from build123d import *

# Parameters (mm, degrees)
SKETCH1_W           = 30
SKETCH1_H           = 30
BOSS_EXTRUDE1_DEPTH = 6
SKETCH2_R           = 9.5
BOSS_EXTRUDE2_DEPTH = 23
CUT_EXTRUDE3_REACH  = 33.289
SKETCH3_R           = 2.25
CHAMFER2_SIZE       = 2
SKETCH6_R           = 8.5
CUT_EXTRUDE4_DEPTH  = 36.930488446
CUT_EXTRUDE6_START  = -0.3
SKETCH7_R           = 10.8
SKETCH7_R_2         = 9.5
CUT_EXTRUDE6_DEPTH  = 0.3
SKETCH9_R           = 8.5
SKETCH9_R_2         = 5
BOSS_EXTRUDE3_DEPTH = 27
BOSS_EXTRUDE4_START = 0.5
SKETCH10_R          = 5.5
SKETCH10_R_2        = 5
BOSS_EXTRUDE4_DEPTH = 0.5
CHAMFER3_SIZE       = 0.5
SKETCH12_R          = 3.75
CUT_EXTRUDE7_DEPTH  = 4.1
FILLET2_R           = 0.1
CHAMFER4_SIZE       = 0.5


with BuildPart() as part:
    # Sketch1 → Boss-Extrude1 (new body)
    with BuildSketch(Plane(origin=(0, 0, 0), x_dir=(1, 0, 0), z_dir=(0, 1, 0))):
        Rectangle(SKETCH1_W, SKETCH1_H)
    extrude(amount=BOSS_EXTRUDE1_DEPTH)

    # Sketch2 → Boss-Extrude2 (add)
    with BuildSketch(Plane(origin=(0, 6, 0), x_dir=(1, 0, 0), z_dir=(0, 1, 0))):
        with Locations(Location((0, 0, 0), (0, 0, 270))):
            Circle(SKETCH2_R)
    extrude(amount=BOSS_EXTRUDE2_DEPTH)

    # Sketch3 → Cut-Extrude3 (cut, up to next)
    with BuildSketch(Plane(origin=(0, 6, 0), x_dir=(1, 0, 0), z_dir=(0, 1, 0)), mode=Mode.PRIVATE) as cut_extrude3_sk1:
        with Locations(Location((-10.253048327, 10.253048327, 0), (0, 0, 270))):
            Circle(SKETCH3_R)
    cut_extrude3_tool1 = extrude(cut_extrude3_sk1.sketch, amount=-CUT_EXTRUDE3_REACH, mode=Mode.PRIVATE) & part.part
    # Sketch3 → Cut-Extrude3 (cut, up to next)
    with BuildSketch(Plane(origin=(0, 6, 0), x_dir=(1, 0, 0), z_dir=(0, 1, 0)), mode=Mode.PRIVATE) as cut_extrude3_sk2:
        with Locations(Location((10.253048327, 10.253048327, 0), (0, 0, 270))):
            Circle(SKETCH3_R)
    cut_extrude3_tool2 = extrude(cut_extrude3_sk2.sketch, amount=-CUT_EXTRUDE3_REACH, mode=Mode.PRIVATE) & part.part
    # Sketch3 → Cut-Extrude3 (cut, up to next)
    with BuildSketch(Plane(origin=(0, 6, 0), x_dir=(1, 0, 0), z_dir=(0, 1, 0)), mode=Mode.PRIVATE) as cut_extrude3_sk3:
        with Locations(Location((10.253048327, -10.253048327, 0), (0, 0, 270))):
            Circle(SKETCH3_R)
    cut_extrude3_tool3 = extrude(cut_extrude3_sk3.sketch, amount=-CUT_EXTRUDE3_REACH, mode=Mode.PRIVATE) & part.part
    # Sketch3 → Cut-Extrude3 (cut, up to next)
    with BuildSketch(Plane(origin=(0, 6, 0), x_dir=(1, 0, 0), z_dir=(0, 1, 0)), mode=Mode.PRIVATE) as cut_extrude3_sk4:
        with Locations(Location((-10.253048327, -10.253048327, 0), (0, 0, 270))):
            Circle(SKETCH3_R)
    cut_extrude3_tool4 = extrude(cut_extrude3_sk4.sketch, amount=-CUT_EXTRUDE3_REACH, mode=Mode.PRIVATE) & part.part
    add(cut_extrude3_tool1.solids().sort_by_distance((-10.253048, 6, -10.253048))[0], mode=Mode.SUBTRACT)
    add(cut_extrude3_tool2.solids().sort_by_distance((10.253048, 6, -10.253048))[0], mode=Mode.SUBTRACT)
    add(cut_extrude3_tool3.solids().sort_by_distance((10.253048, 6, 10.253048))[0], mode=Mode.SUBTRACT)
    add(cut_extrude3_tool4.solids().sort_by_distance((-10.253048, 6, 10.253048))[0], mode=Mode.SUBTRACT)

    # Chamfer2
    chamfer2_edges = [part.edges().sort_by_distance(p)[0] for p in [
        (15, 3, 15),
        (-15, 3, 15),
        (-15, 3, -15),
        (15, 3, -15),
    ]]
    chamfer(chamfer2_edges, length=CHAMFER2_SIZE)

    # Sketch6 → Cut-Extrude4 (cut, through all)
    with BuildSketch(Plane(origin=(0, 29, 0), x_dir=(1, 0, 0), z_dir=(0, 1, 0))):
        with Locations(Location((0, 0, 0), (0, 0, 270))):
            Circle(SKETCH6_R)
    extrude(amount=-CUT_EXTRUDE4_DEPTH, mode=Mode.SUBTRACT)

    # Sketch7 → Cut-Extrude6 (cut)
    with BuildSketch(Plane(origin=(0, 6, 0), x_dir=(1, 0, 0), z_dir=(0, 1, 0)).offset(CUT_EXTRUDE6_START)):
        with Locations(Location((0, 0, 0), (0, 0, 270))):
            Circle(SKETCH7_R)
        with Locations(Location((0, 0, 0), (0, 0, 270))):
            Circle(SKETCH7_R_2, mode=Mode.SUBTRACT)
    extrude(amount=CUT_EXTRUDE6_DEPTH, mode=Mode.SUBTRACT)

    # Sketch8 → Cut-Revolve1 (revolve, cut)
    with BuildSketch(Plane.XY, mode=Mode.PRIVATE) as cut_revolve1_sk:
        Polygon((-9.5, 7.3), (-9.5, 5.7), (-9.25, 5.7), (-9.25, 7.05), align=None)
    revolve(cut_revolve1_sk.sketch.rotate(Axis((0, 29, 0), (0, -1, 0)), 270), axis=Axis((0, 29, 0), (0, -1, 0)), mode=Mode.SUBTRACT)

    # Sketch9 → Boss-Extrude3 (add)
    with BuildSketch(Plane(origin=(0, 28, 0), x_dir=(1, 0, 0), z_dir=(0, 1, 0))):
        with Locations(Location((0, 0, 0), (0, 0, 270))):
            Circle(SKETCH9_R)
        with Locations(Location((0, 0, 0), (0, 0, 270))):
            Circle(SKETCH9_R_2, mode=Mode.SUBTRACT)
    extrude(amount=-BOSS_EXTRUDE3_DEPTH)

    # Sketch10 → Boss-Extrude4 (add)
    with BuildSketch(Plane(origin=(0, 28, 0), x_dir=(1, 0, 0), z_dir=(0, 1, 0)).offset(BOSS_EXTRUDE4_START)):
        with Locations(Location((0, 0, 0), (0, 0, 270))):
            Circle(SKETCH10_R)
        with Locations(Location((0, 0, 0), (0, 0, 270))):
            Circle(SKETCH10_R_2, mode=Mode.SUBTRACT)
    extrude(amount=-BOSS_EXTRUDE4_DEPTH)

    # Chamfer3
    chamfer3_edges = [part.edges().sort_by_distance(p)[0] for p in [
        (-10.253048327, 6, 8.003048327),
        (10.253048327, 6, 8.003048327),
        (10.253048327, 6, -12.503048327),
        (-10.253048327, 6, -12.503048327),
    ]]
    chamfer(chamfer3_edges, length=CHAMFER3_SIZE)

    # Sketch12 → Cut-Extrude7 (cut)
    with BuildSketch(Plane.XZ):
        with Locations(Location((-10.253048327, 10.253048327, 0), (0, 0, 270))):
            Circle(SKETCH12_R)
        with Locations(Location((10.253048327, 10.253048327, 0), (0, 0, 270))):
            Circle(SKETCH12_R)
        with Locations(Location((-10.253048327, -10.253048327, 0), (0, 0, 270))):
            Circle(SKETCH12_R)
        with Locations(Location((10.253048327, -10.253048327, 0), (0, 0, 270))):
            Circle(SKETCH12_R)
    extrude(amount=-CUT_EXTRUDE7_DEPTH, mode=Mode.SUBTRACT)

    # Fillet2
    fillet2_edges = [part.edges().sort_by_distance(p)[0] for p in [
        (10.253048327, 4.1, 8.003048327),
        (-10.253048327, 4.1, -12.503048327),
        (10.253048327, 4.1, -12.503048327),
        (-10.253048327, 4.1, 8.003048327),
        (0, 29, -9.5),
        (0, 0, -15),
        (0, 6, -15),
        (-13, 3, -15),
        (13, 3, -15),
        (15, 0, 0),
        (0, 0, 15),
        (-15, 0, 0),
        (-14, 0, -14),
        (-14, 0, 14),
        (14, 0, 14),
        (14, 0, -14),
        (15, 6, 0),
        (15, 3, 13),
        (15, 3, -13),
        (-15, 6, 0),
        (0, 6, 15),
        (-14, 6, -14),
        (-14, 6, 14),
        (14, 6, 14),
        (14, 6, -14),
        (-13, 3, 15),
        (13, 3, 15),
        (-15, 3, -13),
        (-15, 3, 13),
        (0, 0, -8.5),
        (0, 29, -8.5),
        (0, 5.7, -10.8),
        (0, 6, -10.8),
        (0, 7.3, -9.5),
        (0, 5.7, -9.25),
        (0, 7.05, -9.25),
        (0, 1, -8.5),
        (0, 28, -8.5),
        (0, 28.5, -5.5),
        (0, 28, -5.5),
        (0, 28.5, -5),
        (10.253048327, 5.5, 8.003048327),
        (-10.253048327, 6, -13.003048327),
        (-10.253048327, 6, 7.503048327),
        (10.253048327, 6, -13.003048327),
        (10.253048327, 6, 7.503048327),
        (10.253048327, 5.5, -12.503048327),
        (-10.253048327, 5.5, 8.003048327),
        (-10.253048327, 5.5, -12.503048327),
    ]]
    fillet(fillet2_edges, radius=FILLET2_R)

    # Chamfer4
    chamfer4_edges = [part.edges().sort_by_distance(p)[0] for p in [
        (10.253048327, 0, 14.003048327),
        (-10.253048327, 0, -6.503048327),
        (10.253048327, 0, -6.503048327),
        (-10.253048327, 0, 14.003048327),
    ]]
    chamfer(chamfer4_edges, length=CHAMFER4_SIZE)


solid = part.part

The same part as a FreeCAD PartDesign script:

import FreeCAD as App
import Part
import Sketcher
from FreeCAD import Vector
Q = App.Units.Quantity


def edges_at(feature, points):
    """Names of the edges that pass closest to the given points."""
    edges = feature.Shape.Edges
    near = lambda p: min(range(len(edges)), key=lambda i: edges[i].distToShape(Part.Vertex(*p))[0])
    return sorted({f"Edge{near(p) + 1}" for p in points})


def add_polygon(sketch, points):
    """Adds a closed chain of lines whose ends are joined by coincident constraints."""
    first, n = sketch.GeometryCount, len(points)
    for a, b in zip(points, points[1:] + points[:1]):
        sketch.addGeometry(Part.LineSegment(App.Vector(*a, 0), App.Vector(*b, 0)), False)
    for i in range(n):
        sketch.addConstraint(Sketcher.Constraint("Coincident", first + i, 2, first + (i + 1) % n, 1))

doc = App.newDocument("Part")
body = doc.addObject("PartDesign::Body", "Body")

# Sketch on XZ plane
sketch1 = body.newObject("Sketcher::SketchObject", "Sketch")
sketch1.AttachmentSupport = (doc.getObject("XZ_Plane"), [""])
sketch1.MapMode = "FlatFace"
add_polygon(sketch1, [(-15, -15), (-15, 15), (15, 15), (15, -15)])  # lines 0-3
sketch1.addConstraint([
    Sketcher.Constraint("Vertical", 0),
    Sketcher.Constraint("Horizontal", 1),
    Sketcher.Constraint("Vertical", 2),
    Sketcher.Constraint("Horizontal", 3),
    Sketcher.Constraint("Symmetric", 0, 2, 2, 2, -1, 1),
    Sketcher.Constraint("Equal", 3, 0),
    Sketcher.Constraint("DistanceX", 1, 1, 1, 2, Q("30 mm")),
])
pad1 = body.newObject("PartDesign::Pad", "Pad")
pad1.Profile = sketch1
pad1.Length = 6
pad1.Reversed = True

# Sketch on XZ plane
sketch2 = body.newObject("Sketcher::SketchObject", "Sketch001")
sketch2.AttachmentSupport = (doc.getObject("XZ_Plane"), [""])
sketch2.MapMode = "FlatFace"
sketch2.AttachmentOffset = App.Placement(Vector(0, 0, -6), App.Rotation())
sketch2.addGeometry(Part.Circle(Vector(0, 0, 0), Vector(0, 0, 1), 9.5), False)
sketch2.addConstraint([
    Sketcher.Constraint("Coincident", 0, 3, -1, 1),
    Sketcher.Constraint("Diameter", 0, Q("19 mm")),
])
pad2 = body.newObject("PartDesign::Pad", "Pad001")
pad2.Profile = sketch2
pad2.Length = 23
pad2.Reversed = True

# Sketch on XZ plane
sketch3 = body.newObject("Sketcher::SketchObject", "Sketch002")
sketch3.AttachmentSupport = (doc.getObject("XZ_Plane"), [""])
sketch3.MapMode = "FlatFace"
sketch3.AttachmentOffset = App.Placement(Vector(0, 0, -6), App.Rotation())
sketch3.addGeometry(Part.Circle(Vector(-10.253048, -10.253048, 0), Vector(0, 0, 1), 2.25), False)
sketch3.addConstraint([
    Sketcher.Constraint("Diameter", 0, Q("4.5 mm")),
    Sketcher.Constraint("DistanceX", 0, 3, -1, 1, Q("10.253048 mm")),
    Sketcher.Constraint("DistanceY", 0, 3, -1, 1, Q("10.253048 mm")),
])
pocket1 = body.newObject("PartDesign::Pocket", "Pocket")
pocket1.Profile = sketch3
pocket1.Type = "UpToFirst"
pocket1.Reversed = True

# Sketch on XZ plane
sketch4 = body.newObject("Sketcher::SketchObject", "Sketch003")
sketch4.AttachmentSupport = (doc.getObject("XZ_Plane"), [""])
sketch4.MapMode = "FlatFace"
sketch4.AttachmentOffset = App.Placement(Vector(0, 0, -6), App.Rotation())
sketch4.addGeometry(Part.Circle(Vector(10.253048, -10.253048, 0), Vector(0, 0, 1), 2.25), False)
sketch4.addConstraint([
    Sketcher.Constraint("Diameter", 0, Q("4.5 mm")),
    Sketcher.Constraint("DistanceX", -1, 1, 0, 3, Q("10.253048 mm")),
    Sketcher.Constraint("DistanceY", 0, 3, -1, 1, Q("10.253048 mm")),
])
pocket2 = body.newObject("PartDesign::Pocket", "Pocket001")
pocket2.Profile = sketch4
pocket2.Type = "UpToFirst"
pocket2.Reversed = True

# Sketch on XZ plane
sketch5 = body.newObject("Sketcher::SketchObject", "Sketch004")
sketch5.AttachmentSupport = (doc.getObject("XZ_Plane"), [""])
sketch5.MapMode = "FlatFace"
sketch5.AttachmentOffset = App.Placement(Vector(0, 0, -6), App.Rotation())
sketch5.addGeometry(Part.Circle(Vector(10.253048, 10.253048, 0), Vector(0, 0, 1), 2.25), False)
sketch5.addConstraint([
    Sketcher.Constraint("Diameter", 0, Q("4.5 mm")),
    Sketcher.Constraint("DistanceX", -1, 1, 0, 3, Q("10.253048 mm")),
    Sketcher.Constraint("DistanceY", -1, 1, 0, 3, Q("10.253048 mm")),
])
pocket3 = body.newObject("PartDesign::Pocket", "Pocket002")
pocket3.Profile = sketch5
pocket3.Type = "UpToFirst"
pocket3.Reversed = True

# Sketch on XZ plane
sketch6 = body.newObject("Sketcher::SketchObject", "Sketch005")
sketch6.AttachmentSupport = (doc.getObject("XZ_Plane"), [""])
sketch6.MapMode = "FlatFace"
sketch6.AttachmentOffset = App.Placement(Vector(0, 0, -6), App.Rotation())
sketch6.addGeometry(Part.Circle(Vector(-10.253048, 10.253048, 0), Vector(0, 0, 1), 2.25), False)
sketch6.addConstraint([
    Sketcher.Constraint("Diameter", 0, Q("4.5 mm")),
    Sketcher.Constraint("DistanceX", 0, 3, -1, 1, Q("10.253048 mm")),
    Sketcher.Constraint("DistanceY", -1, 1, 0, 3, Q("10.253048 mm")),
])
pocket4 = body.newObject("PartDesign::Pocket", "Pocket003")
pocket4.Profile = sketch6
pocket4.Type = "UpToFirst"
pocket4.Reversed = True
doc.recompute()

chamfer = body.newObject("PartDesign::Chamfer", "Chamfer")
chamfer.Base = (pocket4, edges_at(pocket4, [
    (15, 3, 15),
    (-15, 3, 15),
    (-15, 3, -15),
    (15, 3, -15),
]))
chamfer.Size = 2

# Sketch on XZ plane
sketch7 = body.newObject("Sketcher::SketchObject", "Sketch006")
sketch7.AttachmentSupport = (doc.getObject("XZ_Plane"), [""])
sketch7.MapMode = "FlatFace"
sketch7.AttachmentOffset = App.Placement(Vector(0, 0, -29), App.Rotation())
sketch7.addGeometry(Part.Circle(Vector(0, 0, 0), Vector(0, 0, 1), 8.5), False)
sketch7.addConstraint([
    Sketcher.Constraint("Coincident", 0, 3, -1, 1),
    Sketcher.Constraint("Diameter", 0, Q("17 mm")),
])
pocket5 = body.newObject("PartDesign::Pocket", "Pocket004")
pocket5.Profile = sketch7
pocket5.Type = "ThroughAll"
pocket5.Reversed = True

# Sketch on XZ plane
sketch8 = body.newObject("Sketcher::SketchObject", "Sketch007")
sketch8.AttachmentSupport = (doc.getObject("XZ_Plane"), [""])
sketch8.MapMode = "FlatFace"
sketch8.AttachmentOffset = App.Placement(Vector(0, 0, -5.7), App.Rotation())
sketch8.addGeometry([
    Part.Circle(Vector(0, 0, 0), Vector(0, 0, 1), 10.8),
    Part.Circle(Vector(0, 0, 0), Vector(0, 0, 1), 9.5),
], False)
sketch8.addConstraint([
    Sketcher.Constraint("Coincident", 0, 3, -1, 1),
    Sketcher.Constraint("Coincident", 1, 3, -1, 1),
    Sketcher.Constraint("Diameter", 1, Q("19 mm")),
    Sketcher.Constraint("Diameter", 0, Q("21.6 mm")),
])
pocket6 = body.newObject("PartDesign::Pocket", "Pocket005")
pocket6.Profile = sketch8
pocket6.Length = 0.3

# Sketch on XY plane
sketch9 = body.newObject("Sketcher::SketchObject", "Sketch008")
sketch9.AttachmentSupport = (doc.getObject("XY_Plane"), [""])
sketch9.MapMode = "FlatFace"
add_polygon(sketch9, [(-9.5, 7.3), (-9.5, 5.7), (-9.25, 5.7), (-9.25, 7.05)])  # lines 0-3
sketch9.addConstraint([
    Sketcher.Constraint("Vertical", 0),
    Sketcher.Constraint("Horizontal", 1),
    Sketcher.Constraint("Vertical", 2),
    Sketcher.Constraint("Angle", 3, Q("135 deg")),
    Sketcher.Constraint("DistanceY", 0, 2, 0, 1, Q("1.6 mm")),
    Sketcher.Constraint("DistanceX", 1, 1, 1, 2, Q("0.25 mm")),
    Sketcher.Constraint("DistanceX", 0, 2, -1, 1, Q("9.5 mm")),
    Sketcher.Constraint("DistanceY", -1, 1, 0, 2, Q("5.7 mm")),
])
groove = body.newObject("PartDesign::Groove", "Groove")
groove.Profile = sketch9
groove.ReferenceAxis = (sketch9, ["V_Axis"])
groove.Angle = 360

# Sketch on XZ plane
sketch10 = body.newObject("Sketcher::SketchObject", "Sketch009")
sketch10.AttachmentSupport = (doc.getObject("XZ_Plane"), [""])
sketch10.MapMode = "FlatFace"
sketch10.AttachmentOffset = App.Placement(Vector(0, 0, -28), App.Rotation())
sketch10.addGeometry([
    Part.Circle(Vector(0, 0, 0), Vector(0, 0, 1), 8.5),
    Part.Circle(Vector(0, 0, 0), Vector(0, 0, 1), 5),
], False)
sketch10.addConstraint([
    Sketcher.Constraint("Coincident", 0, 3, -1, 1),
    Sketcher.Constraint("Coincident", 1, 3, -1, 1),
    Sketcher.Constraint("Diameter", 0, Q("17 mm")),
    Sketcher.Constraint("Diameter", 1, Q("10 mm")),
])
pad3 = body.newObject("PartDesign::Pad", "Pad002")
pad3.Profile = sketch10
pad3.Length = 27

# Sketch on XZ plane
sketch11 = body.newObject("Sketcher::SketchObject", "Sketch010")
sketch11.AttachmentSupport = (doc.getObject("XZ_Plane"), [""])
sketch11.MapMode = "FlatFace"
sketch11.AttachmentOffset = App.Placement(Vector(0, 0, -28.5), App.Rotation())
sketch11.addGeometry([
    Part.Circle(Vector(0, 0, 0), Vector(0, 0, 1), 5.5),
    Part.Circle(Vector(0, 0, 0), Vector(0, 0, 1), 5),
], False)
sketch11.addConstraint([
    Sketcher.Constraint("Coincident", 0, 3, -1, 1),
    Sketcher.Constraint("Coincident", 1, 3, -1, 1),
    Sketcher.Constraint("Diameter", 0, Q("11 mm")),
    Sketcher.Constraint("Diameter", 1, Q("10 mm")),
])
pad4 = body.newObject("PartDesign::Pad", "Pad003")
pad4.Profile = sketch11
pad4.Length = 0.5
doc.recompute()

chamfer2 = body.newObject("PartDesign::Chamfer", "Chamfer001")
chamfer2.Base = (pad4, edges_at(pad4, [
    (-10.253, 6, 8.003),
    (10.253, 6, 8.003),
    (10.253, 6, -12.503),
    (-10.253, 6, -12.503),
]))
chamfer2.Size = 0.5

# Sketch on XZ plane
sketch12 = body.newObject("Sketcher::SketchObject", "Sketch011")
sketch12.AttachmentSupport = (doc.getObject("XZ_Plane"), [""])
sketch12.MapMode = "FlatFace"
sketch12.addGeometry([
    Part.Circle(Vector(-10.253048, 10.253048, 0), Vector(0, 0, 1), 3.75),
    Part.Circle(Vector(10.253048, 10.253048, 0), Vector(0, 0, 1), 3.75),
    Part.Circle(Vector(-10.253048, -10.253048, 0), Vector(0, 0, 1), 3.75),
    Part.Circle(Vector(10.253048, -10.253048, 0), Vector(0, 0, 1), 3.75),
], False)
sketch12.addConstraint([
    Sketcher.Constraint("Equal", 0, 1),
    Sketcher.Constraint("Equal", 1, 2),
    Sketcher.Constraint("Equal", 2, 3),
    Sketcher.Constraint("Symmetric", 1, 3, 2, 3, -1, 1),
    Sketcher.Constraint("Symmetric", 0, 3, 3, 3, -1, 1),
    Sketcher.Constraint("Symmetric", 0, 3, 1, 3, -2),
    Sketcher.Constraint("Diameter", 0, Q("7.5 mm")),
    Sketcher.Constraint("DistanceX", 0, 3, -1, 1, Q("10.253048 mm")),
    Sketcher.Constraint("DistanceY", -1, 1, 0, 3, Q("10.253048 mm")),
])
pocket7 = body.newObject("PartDesign::Pocket", "Pocket006")
pocket7.Profile = sketch12
pocket7.Length = 4.1
doc.recompute()

fillet = body.newObject("PartDesign::Fillet", "Fillet")
fillet.Base = (pocket7, edges_at(pocket7, [
    (10.253, 4.1, 8.003),
    (-10.253, 4.1, -12.503),
    (10.253, 4.1, -12.503),
    (-10.253, 4.1, 8.003),
    (0, 29, -9.5),
    (0, 0, -15),
    (0, 6, -15),
    (-13, 3, -15),
    (13, 3, -15),
    (15, 0, 0),
    (0, 0, 15),
    (-15, 0, 0),
    (-14, 0, -14),
    (-14, 0, 14),
    (14, 0, 14),
    (14, 0, -14),
    (15, 6, 0),
    (15, 3, 13),
    (15, 3, -13),
    (-15, 6, 0),
    (0, 6, 15),
    (-14, 6, -14),
    (-14, 6, 14),
    (14, 6, 14),
    (14, 6, -14),
    (-13, 3, 15),
    (13, 3, 15),
    (-15, 3, -13),
    (-15, 3, 13),
    (0, 0, -8.5),
    (0, 29, -8.5),
    (0, 5.7, -10.8),
    (0, 6, -10.8),
    (0, 7.3, -9.5),
    (0, 5.7, -9.25),
    (0, 7.05, -9.25),
    (0, 1, -8.5),
    (0, 28, -8.5),
    (0, 28.5, -5.5),
    (0, 28, -5.5),
    (0, 28.5, -5),
    (10.253, 5.5, 8.003),
    (-10.253, 6, -13.003),
    (-10.253, 6, 7.503),
    (10.253, 6, -13.003),
    (10.253, 6, 7.503),
    (10.253, 5.5, -12.503),
    (-10.253, 5.5, 8.003),
    (-10.253, 5.5, -12.503),
]))
fillet.Radius = 0.1
doc.recompute()

chamfer3 = body.newObject("PartDesign::Chamfer", "Chamfer002")
chamfer3.Base = (fillet, edges_at(fillet, [
    (10.253, 0, 14.003),
    (-10.253, 0, -6.503),
    (10.253, 0, -6.503),
    (-10.253, 0, 14.003),
]))
chamfer3.Size = 0.5

doc.recompute()
